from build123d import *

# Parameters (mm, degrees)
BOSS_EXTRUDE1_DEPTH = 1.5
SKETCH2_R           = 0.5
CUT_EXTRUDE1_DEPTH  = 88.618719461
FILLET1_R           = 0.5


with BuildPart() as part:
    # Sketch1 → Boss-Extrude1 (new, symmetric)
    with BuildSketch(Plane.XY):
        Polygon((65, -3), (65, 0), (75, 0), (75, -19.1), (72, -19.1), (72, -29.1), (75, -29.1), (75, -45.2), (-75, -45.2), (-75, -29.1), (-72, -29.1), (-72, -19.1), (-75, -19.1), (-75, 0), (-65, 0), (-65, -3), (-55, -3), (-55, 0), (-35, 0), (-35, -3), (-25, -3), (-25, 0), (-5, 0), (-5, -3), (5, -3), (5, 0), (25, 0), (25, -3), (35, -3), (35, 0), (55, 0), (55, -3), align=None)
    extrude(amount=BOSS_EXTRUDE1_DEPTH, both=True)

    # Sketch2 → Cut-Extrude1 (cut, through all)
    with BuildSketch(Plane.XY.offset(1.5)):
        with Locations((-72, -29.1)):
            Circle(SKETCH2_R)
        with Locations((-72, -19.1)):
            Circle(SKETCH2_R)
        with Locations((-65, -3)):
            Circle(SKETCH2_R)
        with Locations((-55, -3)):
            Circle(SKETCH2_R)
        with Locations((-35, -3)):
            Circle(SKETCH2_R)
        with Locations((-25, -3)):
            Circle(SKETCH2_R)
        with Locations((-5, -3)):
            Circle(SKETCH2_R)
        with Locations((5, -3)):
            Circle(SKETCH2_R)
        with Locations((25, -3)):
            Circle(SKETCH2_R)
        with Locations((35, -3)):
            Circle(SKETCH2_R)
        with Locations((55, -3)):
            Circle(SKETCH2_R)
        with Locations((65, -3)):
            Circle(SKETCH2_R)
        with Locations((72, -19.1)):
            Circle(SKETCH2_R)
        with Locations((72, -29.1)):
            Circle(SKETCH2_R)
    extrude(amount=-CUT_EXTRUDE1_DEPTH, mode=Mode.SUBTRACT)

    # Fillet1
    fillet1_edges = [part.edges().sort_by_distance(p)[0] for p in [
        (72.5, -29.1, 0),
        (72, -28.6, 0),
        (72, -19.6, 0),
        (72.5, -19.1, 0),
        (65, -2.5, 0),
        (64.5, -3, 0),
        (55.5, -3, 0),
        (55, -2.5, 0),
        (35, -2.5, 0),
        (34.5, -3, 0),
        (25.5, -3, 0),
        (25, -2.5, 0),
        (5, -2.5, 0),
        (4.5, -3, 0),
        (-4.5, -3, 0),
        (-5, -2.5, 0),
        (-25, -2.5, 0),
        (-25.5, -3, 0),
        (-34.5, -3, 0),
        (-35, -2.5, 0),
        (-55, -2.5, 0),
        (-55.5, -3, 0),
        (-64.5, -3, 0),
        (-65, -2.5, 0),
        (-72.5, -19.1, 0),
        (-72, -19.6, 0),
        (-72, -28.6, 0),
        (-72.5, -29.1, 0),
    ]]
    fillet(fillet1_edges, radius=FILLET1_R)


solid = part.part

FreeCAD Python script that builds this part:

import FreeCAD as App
import Part
import Sketcher

V = App.Vector


def edges_at(feature, points):
    """Names of the edges that pass closest to the given points."""
    edges = feature.Shape.Edges
    near = lambda p: min(range(len(edges)), key=lambda i: edges[i].distToShape(Part.Vertex(*p))[0])
    return sorted({f"Edge{near(p) + 1}" for p in points})

doc = App.newDocument("Part")
body = doc.addObject("PartDesign::Body", "Body")

# Sketch on XY plane
sketch1 = doc.addObject("Sketcher::SketchObject", "Sketch")
body.addObject(sketch1)
sketch1.AttachmentSupport = (doc.XY_Plane, [""])
sketch1.MapMode = "FlatFace"
sketch1.addGeometry(Part.LineSegment(V(65, 0, 0), V(65, -3, 0)), False)
sketch1.addGeometry(Part.LineSegment(V(65, -3, 0), V(55, -3, 0)), False)
sketch1.addGeometry(Part.LineSegment(V(55, -3, 0), V(55, 0, 0)), False)
sketch1.addGeometry(Part.LineSegment(V(55, 0, 0), V(35, 0, 0)), False)
sketch1.addGeometry(Part.LineSegment(V(35, 0, 0), V(35, -3, 0)), False)
sketch1.addGeometry(Part.LineSegment(V(35, -3, 0), V(25, -3, 0)), False)
sketch1.addGeometry(Part.LineSegment(V(25, -3, 0), V(25, 0, 0)), False)
sketch1.addGeometry(Part.LineSegment(V(25, 0, 0), V(5, 0, 0)), False)
sketch1.addGeometry(Part.LineSegment(V(5, 0, 0), V(5, -3, 0)), False)
sketch1.addGeometry(Part.LineSegment(V(5, -3, 0), V(-5, -3, 0)), False)
sketch1.addGeometry(Part.LineSegment(V(-5, -3, 0), V(-5, 0, 0)), False)
sketch1.addGeometry(Part.LineSegment(V(-5, 0, 0), V(-25, 0, 0)), False)
sketch1.addGeometry(Part.LineSegment(V(-25, 0, 0), V(-25, -3, 0)), False)
sketch1.addGeometry(Part.LineSegment(V(-25, -3, 0), V(-35, -3, 0)), False)
sketch1.addGeometry(Part.LineSegment(V(-35, -3, 0), V(-35, 0, 0)), False)
sketch1.addGeometry(Part.LineSegment(V(-35, 0, 0), V(-55, 0, 0)), False)
sketch1.addGeometry(Part.LineSegment(V(-55, 0, 0), V(-55, -3, 0)), False)
sketch1.addGeometry(Part.LineSegment(V(-55, -3, 0), V(-65, -3, 0)), False)
sketch1.addGeometry(Part.LineSegment(V(-65, -3, 0), V(-65, 0, 0)), False)
sketch1.addGeometry(Part.LineSegment(V(-65, 0, 0), V(-75, 0, 0)), False)
sketch1.addGeometry(Part.LineSegment(V(-75, 0, 0), V(-75, -19.1, 0)), False)
sketch1.addGeometry(Part.LineSegment(V(-75, -19.1, 0), V(-72, -19.1, 0)), False)
sketch1.addGeometry(Part.LineSegment(V(-72, -19.1, 0), V(-72, -29.1, 0)), False)
sketch1.addGeometry(Part.LineSegment(V(-72, -29.1, 0), V(-75, -29.1, 0)), False)
sketch1.addGeometry(Part.LineSegment(V(-75, -29.1, 0), V(-75, -45.2, 0)), False)
sketch1.addGeometry(Part.LineSegment(V(-75, -45.2, 0), V(75, -45.2, 0)), False)
sketch1.addGeometry(Part.LineSegment(V(75, -45.2, 0), V(75, -29.1, 0)), False)
sketch1.addGeometry(Part.LineSegment(V(75, -29.1, 0), V(72, -29.1, 0)), False)
sketch1.addGeometry(Part.LineSegment(V(72, -29.1, 0), V(72, -19.1, 0)), False)
sketch1.addGeometry(Part.LineSegment(V(72, -19.1, 0), V(75, -19.1, 0)), False)
sketch1.addGeometry(Part.LineSegment(V(75, -19.1, 0), V(75, 0, 0)), False)
sketch1.addGeometry(Part.LineSegment(V(75, 0, 0), V(65, 0, 0)), False)
sketch1.addConstraint(Sketcher.Constraint("Coincident", 0, 2, 1, 1))
sketch1.addConstraint(Sketcher.Constraint("Coincident", 1, 2, 2, 1))
sketch1.addConstraint(Sketcher.Constraint("Coincident", 2, 2, 3, 1))
sketch1.addConstraint(Sketcher.Constraint("Coincident", 3, 2, 4, 1))
sketch1.addConstraint(Sketcher.Constraint("Coincident", 4, 2, 5, 1))
sketch1.addConstraint(Sketcher.Constraint("Coincident", 5, 2, 6, 1))
sketch1.addConstraint(Sketcher.Constraint("Coincident", 6, 2, 7, 1))
sketch1.addConstraint(Sketcher.Constraint("Coincident", 7, 2, 8, 1))
sketch1.addConstraint(Sketcher.Constraint("Coincident", 8, 2, 9, 1))
sketch1.addConstraint(Sketcher.Constraint("Coincident", 9, 2, 10, 1))
sketch1.addConstraint(Sketcher.Constraint("Coincident", 10, 2, 11, 1))
sketch1.addConstraint(Sketcher.Constraint("Coincident", 11, 2, 12, 1))
sketch1.addConstraint(Sketcher.Constraint("Coincident", 12, 2, 13, 1))
sketch1.addConstraint(Sketcher.Constraint("Coincident", 13, 2, 14, 1))
sketch1.addConstraint(Sketcher.Constraint("Coincident", 14, 2, 15, 1))
sketch1.addConstraint(Sketcher.Constraint("Coincident", 15, 2, 16, 1))
sketch1.addConstraint(Sketcher.Constraint("Coincident", 16, 2, 17, 1))
sketch1.addConstraint(Sketcher.Constraint("Coincident", 17, 2, 18, 1))
sketch1.addConstraint(Sketcher.Constraint("Coincident", 18, 2, 19, 1))
sketch1.addConstraint(Sketcher.Constraint("Coincident", 19, 2, 20, 1))
sketch1.addConstraint(Sketcher.Constraint("Coincident", 20, 2, 21, 1))
sketch1.addConstraint(Sketcher.Constraint("Coincident", 21, 2, 22, 1))
sketch1.addConstraint(Sketcher.Constraint("Coincident", 22, 2, 23, 1))
sketch1.addConstraint(Sketcher.Constraint("Coincident", 23, 2, 24, 1))
sketch1.addConstraint(Sketcher.Constraint("Coincident", 24, 2, 25, 1))
sketch1.addConstraint(Sketcher.Constraint("Coincident", 25, 2, 26, 1))
sketch1.addConstraint(Sketcher.Constraint("Coincident", 26, 2, 27, 1))
sketch1.addConstraint(Sketcher.Constraint("Coincident", 27, 2, 28, 1))
sketch1.addConstraint(Sketcher.Constraint("Coincident", 28, 2, 29, 1))
sketch1.addConstraint(Sketcher.Constraint("Coincident", 29, 2, 30, 1))
sketch1.addConstraint(Sketcher.Constraint("Coincident", 30, 2, 31, 1))
sketch1.addConstraint(Sketcher.Constraint("Coincident", 31, 2, 0, 1))
sketch1.addConstraint(Sketcher.Constraint("Vertical", 0))
sketch1.addConstraint(Sketcher.Constraint("Horizontal", 1))
sketch1.addConstraint(Sketcher.Constraint("Vertical", 2))
sketch1.addConstraint(Sketcher.Constraint("Horizontal", 3))
sketch1.addConstraint(Sketcher.Constraint("Vertical", 4))
sketch1.addConstraint(Sketcher.Constraint("Horizontal", 5))
sketch1.addConstraint(Sketcher.Constraint("Vertical", 6))
sketch1.addConstraint(Sketcher.Constraint("Horizontal", 7))
sketch1.addConstraint(Sketcher.Constraint("Vertical", 8))
sketch1.addConstraint(Sketcher.Constraint("Horizontal", 9))
sketch1.addConstraint(Sketcher.Constraint("Vertical", 10))
sketch1.addConstraint(Sketcher.Constraint("Horizontal", 11))
sketch1.addConstraint(Sketcher.Constraint("Vertical", 12))
sketch1.addConstraint(Sketcher.Constraint("Horizontal", 13))
sketch1.addConstraint(Sketcher.Constraint("Vertical", 14))
sketch1.addConstraint(Sketcher.Constraint("Horizontal", 15))
sketch1.addConstraint(Sketcher.Constraint("Vertical", 16))
sketch1.addConstraint(Sketcher.Constraint("Horizontal", 17))
sketch1.addConstraint(Sketcher.Constraint("Vertical", 18))
sketch1.addConstraint(Sketcher.Constraint("Horizontal", 19))
sketch1.addConstraint(Sketcher.Constraint("Vertical", 20))
sketch1.addConstraint(Sketcher.Constraint("Horizontal", 21))
sketch1.addConstraint(Sketcher.Constraint("Vertical", 22))
sketch1.addConstraint(Sketcher.Constraint("Horizontal", 23))
sketch1.addConstraint(Sketcher.Constraint("Vertical", 24))
sketch1.addConstraint(Sketcher.Constraint("Horizontal", 25))
sketch1.addConstraint(Sketcher.Constraint("Vertical", 26))
sketch1.addConstraint(Sketcher.Constraint("Horizontal", 27))
sketch1.addConstraint(Sketcher.Constraint("Vertical", 28))
sketch1.addConstraint(Sketcher.Constraint("Horizontal", 29))
sketch1.addConstraint(Sketcher.Constraint("Vertical", 30))
sketch1.addConstraint(Sketcher.Constraint("Horizontal", 31))
sketch1.addConstraint(Sketcher.Constraint("Symmetric", 7, 2, 10, 2, -1, 1))
sketch1.addConstraint(Sketcher.Constraint("Symmetric", 3, 2, 14, 2, -1, 1))
sketch1.addConstraint(Sketcher.Constraint("Symmetric", 19, 2, 30, 2, -1, 1))
sketch1.addConstraint(Sketcher.Constraint("Symmetric", 6, 2, 11, 2, -2))
sketch1.addConstraint(Sketcher.Constraint("Symmetric", 2, 2, 15, 2, -2))
sketch1.addConstraint(Sketcher.Constraint("Symmetric", 0, 2, 17, 2, -2))
sketch1.addConstraint(Sketcher.Constraint("Symmetric", 23, 2, 26, 2, -2))
sketch1.addConstraint(Sketcher.Constraint("Symmetric", 21, 2, 28, 2, -2))
sketch1.addConstraint(Sketcher.Constraint("PointOnObject", 18, 2, -1))
sketch1.addConstraint(Sketcher.Constraint("Horizontal", 1, 2, 4, 2))
sketch1.addConstraint(Sketcher.Constraint("Horizontal", 5, 2, 8, 2))
sketch1.addConstraint(Sketcher.Constraint("Horizontal", 9, 2, 12, 2))
sketch1.addConstraint(Sketcher.Constraint("Vertical", 20, 2, 23, 2))
sketch1.addConstraint(Sketcher.Constraint("Equal", 1, 5))
sketch1.addConstraint(Sketcher.Constraint("Equal", 3, 7))
sketch1.addConstraint(Sketcher.Constraint("Equal", 5, 9))
sketch1.addConstraint(Sketcher.Constraint("Equal", 17, 19))
sketch1.addConstraint(Sketcher.Constraint("Equal", 29, 0))
sketch1.addConstraint(Sketcher.Constraint("Equal", 31, 22))
sketch1.addConstraint(Sketcher.Constraint("DistanceX", 1, 2, 1, 1, 10.0))
sketch1.addConstraint(Sketcher.Constraint("DistanceX", 3, 2, 3, 1, 20.0))
sketch1.addConstraint(Sketcher.Constraint("DistanceX", 21, 1, 21, 2, 3.0))
sketch1.addConstraint(Sketcher.Constraint("DistanceY", 20, 2, 20, 1, 19.1))
sketch1.addConstraint(Sketcher.Constraint("DistanceY", 24, 2, 24, 1, 16.1))
pad1 = doc.addObject("PartDesign::Pad", "Pad")
body.addObject(pad1)
pad1.Profile = sketch1
pad1.Length = 3
pad1.Midplane = True

# Sketch on XY plane
sketch2 = doc.addObject("Sketcher::SketchObject", "Sketch001")
body.addObject(sketch2)
sketch2.AttachmentSupport = (doc.XY_Plane, [""])
sketch2.MapMode = "FlatFace"
sketch2.AttachmentOffset = App.Placement(V(0, 0, 1.5), App.Rotation())
sketch2.addGeometry(Part.Circle(V(-72, -29.1, 0), V(0, 0, 1), 0.5), False)
sketch2.addGeometry(Part.Circle(V(-72, -19.1, 0), V(0, 0, 1), 0.5), False)
sketch2.addGeometry(Part.Circle(V(-65, -3, 0), V(0, 0, 1), 0.5), False)
sketch2.addGeometry(Part.Circle(V(-55, -3, 0), V(0, 0, 1), 0.5), False)
sketch2.addGeometry(Part.Circle(V(-35, -3, 0), V(0, 0, 1), 0.5), False)
sketch2.addGeometry(Part.Circle(V(-25, -3, 0), V(0, 0, 1), 0.5), False)
sketch2.addGeometry(Part.Circle(V(-5, -3, 0), V(0, 0, 1), 0.5), False)
sketch2.addGeometry(Part.Circle(V(5, -3, 0), V(0, 0, 1), 0.5), False)
sketch2.addGeometry(Part.Circle(V(25, -3, 0), V(0, 0, 1), 0.5), False)
sketch2.addGeometry(Part.Circle(V(35, -3, 0), V(0, 0, 1), 0.5), False)
sketch2.addGeometry(Part.Circle(V(55, -3, 0), V(0, 0, 1), 0.5), False)
sketch2.addGeometry(Part.Circle(V(65, -3, 0), V(0, 0, 1), 0.5), False)
sketch2.addGeometry(Part.Circle(V(72, -19.1, 0), V(0, 0, 1), 0.5), False)
sketch2.addGeometry(Part.Circle(V(72, -29.1, 0), V(0, 0, 1), 0.5), False)
sketch2.addConstraint(Sketcher.Constraint("Equal", 0, 1))
sketch2.addConstraint(Sketcher.Constraint("Equal", 1, 2))
sketch2.addConstraint(Sketcher.Constraint("Equal", 2, 3))
sketch2.addConstraint(Sketcher.Constraint("Equal", 3, 4))
sketch2.addConstraint(Sketcher.Constraint("Equal", 4, 5))
sketch2.addConstraint(Sketcher.Constraint("Equal", 5, 6))
sketch2.addConstraint(Sketcher.Constraint("Equal", 6, 7))
sketch2.addConstraint(Sketcher.Constraint("Equal", 7, 8))
sketch2.addConstraint(Sketcher.Constraint("Equal", 8, 9))
sketch2.addConstraint(Sketcher.Constraint("Equal", 9, 10))
sketch2.addConstraint(Sketcher.Constraint("Equal", 10, 11))
sketch2.addConstraint(Sketcher.Constraint("Equal", 11, 12))
sketch2.addConstraint(Sketcher.Constraint("Equal", 12, 13))
sketch2.addConstraint(Sketcher.Constraint("Symmetric", 6, 3, 7, 3, -2))
sketch2.addConstraint(Sketcher.Constraint("Symmetric", 5, 3, 8, 3, -2))
sketch2.addConstraint(Sketcher.Constraint("Symmetric", 4, 3, 9, 3, -2))
sketch2.addConstraint(Sketcher.Constraint("Symmetric", 3, 3, 10, 3, -2))
sketch2.addConstraint(Sketcher.Constraint("Symmetric", 2, 3, 11, 3, -2))
sketch2.addConstraint(Sketcher.Constraint("Symmetric", 1, 3, 12, 3, -2))
sketch2.addConstraint(Sketcher.Constraint("Symmetric", 0, 3, 13, 3, -2))
sketch2.addConstraint(Sketcher.Constraint("Horizontal", 2, 3, 3, 3))
sketch2.addConstraint(Sketcher.Constraint("Horizontal", 3, 3, 4, 3))
sketch2.addConstraint(Sketcher.Constraint("Horizontal", 4, 3, 5, 3))
sketch2.addConstraint(Sketcher.Constraint("Horizontal", 5, 3, 6, 3))
sketch2.addConstraint(Sketcher.Constraint("Vertical", 0, 3, 1, 3))
sketch2.addConstraint(Sketcher.Constraint("Diameter", 0, 1.0))
sketch2.addConstraint(Sketcher.Constraint("DistanceX", 0, 3, -1, 1, 72.0))
sketch2.addConstraint(Sketcher.Constraint("DistanceX", 2, 3, -1, 1, 65.0))
sketch2.addConstraint(Sketcher.Constraint("DistanceY", 2, 3, -1, 1, 3.0))
sketch2.addConstraint(Sketcher.Constraint("DistanceX", 3, 3, -1, 1, 55.0))
sketch2.addConstraint(Sketcher.Constraint("DistanceX", 4, 3, -1, 1, 35.0))
sketch2.addConstraint(Sketcher.Constraint("DistanceX", 5, 3, -1, 1, 25.0))
sketch2.addConstraint(Sketcher.Constraint("DistanceX", 6, 3, -1, 1, 5.0))
sketch2.addConstraint(Sketcher.Constraint("DistanceY", 0, 3, 1, 3, 10.0))
sketch2.addConstraint(Sketcher.Constraint("DistanceY", 0, 3, -1, 1, 29.1))
pocket1 = doc.addObject("PartDesign::Pocket", "Pocket")
body.addObject(pocket1)
pocket1.Profile = sketch2
pocket1.Type = "ThroughAll"
doc.recompute()

fillet = doc.addObject("PartDesign::Fillet", "Fillet")
body.addObject(fillet)
fillet.Base = (pocket1, edges_at(pocket1, [
    (72.5, -29.1, 0),
    (72, -28.6, 0),
    (72, -19.6, 0),
    (72.5, -19.1, 0),
    (65, -2.5, 0),
    (64.5, -3, 0),
    (55.5, -3, 0),
    (55, -2.5, 0),
    (35, -2.5, 0),
    (34.5, -3, 0),
    (25.5, -3, 0),
    (25, -2.5, 0),
    (5, -2.5, 0),
    (4.5, -3, 0),
    (-4.5, -3, 0),
    (-5, -2.5, 0),
    (-25, -2.5, 0),
    (-25.5, -3, 0),
    (-34.5, -3, 0),
    (-35, -2.5, 0),
    (-55, -2.5, 0),
    (-55.5, -3, 0),
    (-64.5, -3, 0),
    (-65, -2.5, 0),
    (-72.5, -19.1, 0),
    (-72, -19.6, 0),
    (-72, -28.6, 0),
    (-72.5, -29.1, 0),
]))
fillet.Radius = 0.5

doc.recompute()
